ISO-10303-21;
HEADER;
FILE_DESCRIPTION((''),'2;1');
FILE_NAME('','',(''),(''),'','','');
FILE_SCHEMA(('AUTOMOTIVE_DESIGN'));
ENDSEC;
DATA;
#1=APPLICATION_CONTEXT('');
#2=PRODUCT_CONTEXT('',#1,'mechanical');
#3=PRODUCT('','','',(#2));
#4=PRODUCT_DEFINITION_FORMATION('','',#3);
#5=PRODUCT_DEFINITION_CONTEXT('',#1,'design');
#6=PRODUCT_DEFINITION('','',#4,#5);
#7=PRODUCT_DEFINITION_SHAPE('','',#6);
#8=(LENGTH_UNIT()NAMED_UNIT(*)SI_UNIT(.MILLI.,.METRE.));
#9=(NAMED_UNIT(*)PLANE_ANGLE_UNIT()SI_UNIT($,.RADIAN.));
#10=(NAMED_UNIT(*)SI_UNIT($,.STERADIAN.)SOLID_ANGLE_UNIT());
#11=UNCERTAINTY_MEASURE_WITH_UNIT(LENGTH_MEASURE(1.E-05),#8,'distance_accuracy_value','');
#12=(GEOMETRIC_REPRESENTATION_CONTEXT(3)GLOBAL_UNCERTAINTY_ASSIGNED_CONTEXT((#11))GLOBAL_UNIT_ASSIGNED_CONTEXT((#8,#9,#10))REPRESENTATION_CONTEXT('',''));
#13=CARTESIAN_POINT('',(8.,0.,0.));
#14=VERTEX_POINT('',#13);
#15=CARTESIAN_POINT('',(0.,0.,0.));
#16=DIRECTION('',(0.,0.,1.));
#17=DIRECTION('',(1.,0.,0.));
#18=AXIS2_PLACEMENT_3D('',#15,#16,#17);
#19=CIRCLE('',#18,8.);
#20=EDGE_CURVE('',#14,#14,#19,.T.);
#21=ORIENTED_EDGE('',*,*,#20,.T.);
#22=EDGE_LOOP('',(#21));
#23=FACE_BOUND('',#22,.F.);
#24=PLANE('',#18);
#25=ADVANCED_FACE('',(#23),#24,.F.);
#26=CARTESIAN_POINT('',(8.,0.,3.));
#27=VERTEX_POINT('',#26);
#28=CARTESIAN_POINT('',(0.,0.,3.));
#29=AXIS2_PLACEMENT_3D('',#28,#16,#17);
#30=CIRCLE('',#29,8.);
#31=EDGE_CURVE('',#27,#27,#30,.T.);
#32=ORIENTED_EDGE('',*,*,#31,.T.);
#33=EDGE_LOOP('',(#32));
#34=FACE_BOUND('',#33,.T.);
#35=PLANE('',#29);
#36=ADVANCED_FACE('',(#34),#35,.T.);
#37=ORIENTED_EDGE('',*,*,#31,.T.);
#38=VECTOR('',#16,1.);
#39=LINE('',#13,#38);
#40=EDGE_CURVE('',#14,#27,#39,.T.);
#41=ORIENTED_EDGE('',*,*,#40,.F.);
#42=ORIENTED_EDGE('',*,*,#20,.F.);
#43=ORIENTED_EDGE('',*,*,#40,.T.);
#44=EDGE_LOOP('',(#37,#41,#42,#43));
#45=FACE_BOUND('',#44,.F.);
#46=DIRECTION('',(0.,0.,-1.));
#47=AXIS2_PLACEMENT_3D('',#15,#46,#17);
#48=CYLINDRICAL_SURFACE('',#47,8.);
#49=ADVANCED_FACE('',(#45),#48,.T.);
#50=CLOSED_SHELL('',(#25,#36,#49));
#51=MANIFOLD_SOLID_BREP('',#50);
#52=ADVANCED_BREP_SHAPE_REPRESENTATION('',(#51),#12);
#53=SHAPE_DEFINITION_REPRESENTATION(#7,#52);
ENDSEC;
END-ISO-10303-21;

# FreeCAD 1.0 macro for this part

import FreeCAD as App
import Part
import Sketcher

V = App.Vector

doc = App.newDocument("Part")
body = doc.addObject("PartDesign::Body", "Body")

sketch1 = body.newObject("Sketcher::SketchObject", "Sketch")
sketch1.AttachmentSupport = (doc.getObject("XY_Plane"), [""])
sketch1.MapMode = "FlatFace"
sketch1.addGeometry(Part.Circle(V(0, 0, 0), V(0, 0, 1), 8), False)
sketch1.addConstraint(Sketcher.Constraint("Coincident", 0, 3, -1, 1))
sketch1.addConstraint(Sketcher.Constraint("Diameter", 0, 16.0))
pad1 = body.newObject("PartDesign::Pad", "Pad")
pad1.Profile = sketch1
pad1.Length = 3

doc.recompute()
